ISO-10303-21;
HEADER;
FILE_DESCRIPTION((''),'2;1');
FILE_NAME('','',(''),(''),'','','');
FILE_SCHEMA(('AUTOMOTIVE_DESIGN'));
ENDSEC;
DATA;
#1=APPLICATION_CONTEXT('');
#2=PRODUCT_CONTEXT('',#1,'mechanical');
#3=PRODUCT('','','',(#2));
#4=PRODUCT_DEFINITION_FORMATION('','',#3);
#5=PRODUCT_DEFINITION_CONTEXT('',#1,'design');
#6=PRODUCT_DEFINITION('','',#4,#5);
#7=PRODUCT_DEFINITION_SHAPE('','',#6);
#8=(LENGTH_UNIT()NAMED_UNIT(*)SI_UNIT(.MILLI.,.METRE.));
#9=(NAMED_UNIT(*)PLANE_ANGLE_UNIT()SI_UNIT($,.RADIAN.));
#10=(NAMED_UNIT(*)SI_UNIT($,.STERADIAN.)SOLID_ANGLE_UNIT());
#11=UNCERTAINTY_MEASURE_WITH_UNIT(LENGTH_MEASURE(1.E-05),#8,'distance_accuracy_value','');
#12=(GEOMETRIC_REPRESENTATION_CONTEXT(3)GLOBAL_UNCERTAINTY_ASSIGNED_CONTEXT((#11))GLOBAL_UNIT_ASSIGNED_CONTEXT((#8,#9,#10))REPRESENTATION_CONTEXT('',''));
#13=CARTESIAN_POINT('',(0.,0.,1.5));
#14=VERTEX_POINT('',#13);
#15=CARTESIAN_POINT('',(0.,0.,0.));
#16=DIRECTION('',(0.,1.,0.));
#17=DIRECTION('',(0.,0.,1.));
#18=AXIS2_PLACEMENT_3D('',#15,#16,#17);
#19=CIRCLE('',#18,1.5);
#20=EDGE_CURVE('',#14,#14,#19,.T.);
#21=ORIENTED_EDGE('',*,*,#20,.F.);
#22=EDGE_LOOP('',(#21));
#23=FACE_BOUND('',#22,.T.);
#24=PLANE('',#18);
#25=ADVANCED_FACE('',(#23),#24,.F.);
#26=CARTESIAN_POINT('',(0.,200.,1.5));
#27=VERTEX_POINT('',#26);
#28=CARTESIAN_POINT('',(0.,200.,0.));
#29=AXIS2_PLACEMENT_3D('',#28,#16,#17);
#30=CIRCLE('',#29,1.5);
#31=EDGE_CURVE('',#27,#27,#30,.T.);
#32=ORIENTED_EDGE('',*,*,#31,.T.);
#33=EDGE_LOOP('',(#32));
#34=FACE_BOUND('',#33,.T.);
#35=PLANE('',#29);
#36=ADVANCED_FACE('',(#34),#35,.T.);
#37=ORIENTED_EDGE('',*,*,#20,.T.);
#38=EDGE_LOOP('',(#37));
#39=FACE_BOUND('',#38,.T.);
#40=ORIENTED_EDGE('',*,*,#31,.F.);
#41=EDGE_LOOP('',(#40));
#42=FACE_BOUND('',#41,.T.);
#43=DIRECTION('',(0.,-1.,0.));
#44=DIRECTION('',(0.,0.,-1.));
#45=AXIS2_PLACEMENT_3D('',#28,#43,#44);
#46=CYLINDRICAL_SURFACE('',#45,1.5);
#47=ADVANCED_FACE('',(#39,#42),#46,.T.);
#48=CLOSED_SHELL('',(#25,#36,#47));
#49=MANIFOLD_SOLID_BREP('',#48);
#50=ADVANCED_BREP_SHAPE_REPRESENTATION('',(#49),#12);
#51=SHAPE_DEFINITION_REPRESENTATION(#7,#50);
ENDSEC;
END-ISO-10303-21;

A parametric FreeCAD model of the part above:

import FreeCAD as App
import Part
import Sketcher
from FreeCAD import Vector
Q = App.Units.Quantity

doc = App.newDocument("Part")
body = doc.addObject("PartDesign::Body", "Body")

sketch1 = doc.addObject("Sketcher::SketchObject", "Sketch")
body.addObject(sketch1)
sketch1.AttachmentSupport = (doc.XZ_Plane, [""])
sketch1.MapMode = "FlatFace"
sketch1.addGeometry(Part.Circle(Vector(0, 0, 0), Vector(0, 0, 1), 1.5), False)
sketch1.addConstraint(Sketcher.Constraint("Coincident", 0, 3, -1, 1))
sketch1.addConstraint(Sketcher.Constraint("Diameter", 0, Q("3 mm")))
pad1 = doc.addObject("PartDesign::Pad", "Pad")
body.addObject(pad1)
pad1.Profile = sketch1
pad1.Length = 200
pad1.Reversed = True

doc.recompute()
